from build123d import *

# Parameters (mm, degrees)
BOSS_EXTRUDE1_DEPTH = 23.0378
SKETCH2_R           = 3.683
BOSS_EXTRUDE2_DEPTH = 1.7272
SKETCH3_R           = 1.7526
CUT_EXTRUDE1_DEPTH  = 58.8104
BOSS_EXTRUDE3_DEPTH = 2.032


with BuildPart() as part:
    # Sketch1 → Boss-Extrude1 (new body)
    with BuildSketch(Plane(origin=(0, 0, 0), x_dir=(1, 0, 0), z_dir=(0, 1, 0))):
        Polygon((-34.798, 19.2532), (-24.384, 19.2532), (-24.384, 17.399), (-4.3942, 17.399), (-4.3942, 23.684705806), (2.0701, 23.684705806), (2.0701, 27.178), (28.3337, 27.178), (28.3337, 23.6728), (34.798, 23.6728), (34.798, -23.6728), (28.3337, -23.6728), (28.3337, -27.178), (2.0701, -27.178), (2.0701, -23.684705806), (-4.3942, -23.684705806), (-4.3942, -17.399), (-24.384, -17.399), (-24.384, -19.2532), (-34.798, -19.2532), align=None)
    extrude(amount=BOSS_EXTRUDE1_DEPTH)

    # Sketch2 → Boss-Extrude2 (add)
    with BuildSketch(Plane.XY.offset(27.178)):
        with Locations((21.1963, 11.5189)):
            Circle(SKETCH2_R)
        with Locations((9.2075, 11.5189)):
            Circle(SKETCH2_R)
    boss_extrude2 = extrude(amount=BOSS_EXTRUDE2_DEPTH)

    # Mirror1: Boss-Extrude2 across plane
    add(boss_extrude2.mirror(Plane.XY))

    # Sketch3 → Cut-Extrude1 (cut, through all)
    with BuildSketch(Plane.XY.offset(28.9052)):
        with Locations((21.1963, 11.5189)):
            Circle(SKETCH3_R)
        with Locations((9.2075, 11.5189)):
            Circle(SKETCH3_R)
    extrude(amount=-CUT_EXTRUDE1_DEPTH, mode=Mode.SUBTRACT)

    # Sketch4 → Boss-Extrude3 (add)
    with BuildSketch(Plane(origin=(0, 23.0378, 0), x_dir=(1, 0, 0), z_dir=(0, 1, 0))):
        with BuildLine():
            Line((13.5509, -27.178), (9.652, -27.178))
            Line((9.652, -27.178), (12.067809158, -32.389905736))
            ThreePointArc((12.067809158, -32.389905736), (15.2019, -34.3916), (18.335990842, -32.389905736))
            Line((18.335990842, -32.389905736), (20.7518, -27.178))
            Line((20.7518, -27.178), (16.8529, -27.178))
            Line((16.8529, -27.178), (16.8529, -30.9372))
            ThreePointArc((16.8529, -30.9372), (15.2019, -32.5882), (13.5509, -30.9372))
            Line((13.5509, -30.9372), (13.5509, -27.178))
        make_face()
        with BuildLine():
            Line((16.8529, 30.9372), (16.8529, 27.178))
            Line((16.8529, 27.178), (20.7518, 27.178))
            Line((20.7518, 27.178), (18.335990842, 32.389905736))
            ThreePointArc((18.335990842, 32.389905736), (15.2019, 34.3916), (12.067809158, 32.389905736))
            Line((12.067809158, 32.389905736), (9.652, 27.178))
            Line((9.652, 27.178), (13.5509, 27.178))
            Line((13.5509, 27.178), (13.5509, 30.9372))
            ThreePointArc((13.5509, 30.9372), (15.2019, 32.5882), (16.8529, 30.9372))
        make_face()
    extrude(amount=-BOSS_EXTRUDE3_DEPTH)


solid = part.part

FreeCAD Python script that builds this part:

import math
import FreeCAD as App
import Part
import Sketcher
from FreeCAD import Vector
Q = App.Units.Quantity


def add_polygon(sketch, points):
    """Adds a closed chain of lines whose ends are joined by coincident constraints."""
    first, n = sketch.GeometryCount, len(points)
    for a, b in zip(points, points[1:] + points[:1]):
        sketch.addGeometry(Part.LineSegment(App.Vector(*a, 0), App.Vector(*b, 0)), False)
    for i in range(n):
        sketch.addConstraint(Sketcher.Constraint("Coincident", first + i, 2, first + (i + 1) % n, 1))

doc = App.newDocument("Part")
body = doc.addObject("PartDesign::Body", "Body")

# Sketch on XZ plane
sketch1 = body.newObject("Sketcher::SketchObject", "Sketch")
sketch1.AttachmentSupport = (doc.getObject("XZ_Plane"), [""])
sketch1.MapMode = "FlatFace"
add_polygon(sketch1, [(-24.4, -19.3), (-34.8, -19.3), (-34.8, 19.3), (-24.4, 19.3), (-24.4, 17.4), (-4.4, 17.4), (-4.4, 23.7), (2.1, 23.7), (2.1, 27.2), (28.3, 27.2), (28.3, 23.7), (34.8, 23.7), (34.8, -23.7), (28.3, -23.7), (28.3, -27.2), (2.1, -27.2), (2.1, -23.7), (-4.4, -23.7), (-4.4, -17.4), (-24.4, -17.4)])  # lines 0-19
sketch1.addConstraint(Sketcher.Constraint("Horizontal", 0))
sketch1.addConstraint(Sketcher.Constraint("Vertical", 1))
sketch1.addConstraint(Sketcher.Constraint("Horizontal", 2))
sketch1.addConstraint(Sketcher.Constraint("Vertical", 3))
sketch1.addConstraint(Sketcher.Constraint("Horizontal", 4))
sketch1.addConstraint(Sketcher.Constraint("Vertical", 5))
sketch1.addConstraint(Sketcher.Constraint("Horizontal", 6))
sketch1.addConstraint(Sketcher.Constraint("Vertical", 7))
sketch1.addConstraint(Sketcher.Constraint("Horizontal", 8))
sketch1.addConstraint(Sketcher.Constraint("Vertical", 9))
sketch1.addConstraint(Sketcher.Constraint("Horizontal", 10))
sketch1.addConstraint(Sketcher.Constraint("Vertical", 11))
sketch1.addConstraint(Sketcher.Constraint("Horizontal", 12))
sketch1.addConstraint(Sketcher.Constraint("Vertical", 13))
sketch1.addConstraint(Sketcher.Constraint("Horizontal", 14))
sketch1.addConstraint(Sketcher.Constraint("Vertical", 15))
sketch1.addConstraint(Sketcher.Constraint("Horizontal", 16))
sketch1.addConstraint(Sketcher.Constraint("Vertical", 17))
sketch1.addConstraint(Sketcher.Constraint("Horizontal", 18))
sketch1.addConstraint(Sketcher.Constraint("Vertical", 19))
sketch1.addConstraint(Sketcher.Constraint("Symmetric", 9, 2, 12, 2, -1))
sketch1.addConstraint(Sketcher.Constraint("Symmetric", 7, 2, 14, 2, -1))
sketch1.addConstraint(Sketcher.Constraint("Symmetric", 5, 2, 16, 2, -1))
sketch1.addConstraint(Sketcher.Constraint("Symmetric", 3, 2, 18, 2, -1))
sketch1.addConstraint(Sketcher.Constraint("Equal", 6, 10))
sketch1.addConstraint(Sketcher.Constraint("Equal", 3, 19))
sketch1.addConstraint(Sketcher.Constraint("DistanceX", 0, 2, 0, 1, Q("0.41 in")))
sketch1.addConstraint(Sketcher.Constraint("DistanceX", 4, 1, 4, 2, Q("0.787 in")))
sketch1.addConstraint(Sketcher.Constraint("DistanceX", 8, 1, 8, 2, Q("1.034 in")))
sketch1.addConstraint(Sketcher.Constraint("DistanceY", 1, 1, 1, 2, Q("1.516 in")))
sketch1.addConstraint(Sketcher.Constraint("DistanceY", 3, 2, 3, 1, Q("0.073 in")))
sketch1.addConstraint(Sketcher.Constraint("DistanceY", 9, 2, 9, 1, Q("0.138 in")))
sketch1.addConstraint(Sketcher.Constraint("DistanceY", 11, 2, 11, 1, Q("1.864 in")))
sketch1.addConstraint(Sketcher.Constraint("DistanceX", 0, 2, -1, 1, Q("1.37 in")))
sketch1.addConstraint(Sketcher.Constraint("DistanceX", -1, 1, 10, 2, Q("1.37 in")))
sketch1.addConstraint(Sketcher.Constraint("DistanceY", 5, 1, 5, 2, Q("6.285706 mm")))
pad1 = body.newObject("PartDesign::Pad", "Pad")
pad1.Profile = sketch1
pad1.Length = Q("0.907 in")
pad1.Reversed = True

# Sketch on XY plane
sketch2 = body.newObject("Sketcher::SketchObject", "Sketch001")
sketch2.AttachmentSupport = (doc.getObject("XY_Plane"), [""])
sketch2.MapMode = "FlatFace"
sketch2.AttachmentOffset = App.Placement(Vector(0, 0, 1.07 * 25.4), App.Rotation())
sketch2.addGeometry(Part.Circle(Vector(21.2, 11.5, 0), Vector(0, 0, 1), 3.7), False)
sketch2.addGeometry(Part.Circle(Vector(9.2, 11.5, 0), Vector(0, 0, 1), 3.7), False)
sketch2.addConstraint(Sketcher.Constraint("Equal", 0, 1))
sketch2.addConstraint(Sketcher.Constraint("Horizontal", 0, 3, 1, 3))
sketch2.addConstraint(Sketcher.Constraint("Diameter", 0, Q("0.29 in")))
sketch2.addConstraint(Sketcher.Constraint("DistanceX", 1, 3, 0, 3, Q("0.472 in")))
sketch2.addConstraint(Sketcher.Constraint("DistanceX", -1, 1, 0, 3, Q("0.8345 in")))
sketch2.addConstraint(Sketcher.Constraint("DistanceY", -1, 1, 0, 3, Q("0.4535 in")))
pad2 = body.newObject("PartDesign::Pad", "Pad001")
pad2.Profile = sketch2
pad2.Length = Q("0.068 in")
doc.recompute()

mirrored = body.newObject("PartDesign::Mirrored", "Mirrored")
mirrored.Originals = [pad2]
mirrored.MirrorPlane = (doc.getObject("XY_Plane"), [""])
body.Tip = mirrored

# Sketch on XY plane
sketch3 = body.newObject("Sketcher::SketchObject", "Sketch002")
sketch3.AttachmentSupport = (doc.getObject("XY_Plane"), [""])
sketch3.MapMode = "FlatFace"
sketch3.AttachmentOffset = App.Placement(Vector(0, 0, 1.138 * 25.4), App.Rotation())
sketch3.addGeometry(Part.Circle(Vector(21.2, 11.5, 0), Vector(0, 0, 1), 1.8), False)
sketch3.addGeometry(Part.Circle(Vector(9.2, 11.5, 0), Vector(0, 0, 1), 1.8), False)
sketch3.addConstraint(Sketcher.Constraint("Equal", 0, 1))
sketch3.addConstraint(Sketcher.Constraint("Horizontal", 0, 3, 1, 3))
sketch3.addConstraint(Sketcher.Constraint("Diameter", 0, Q("0.138 in")))
sketch3.addConstraint(Sketcher.Constraint("DistanceX", 1, 3, 0, 3, Q("0.472 in")))
sketch3.addConstraint(Sketcher.Constraint("DistanceX", -1, 1, 0, 3, Q("0.8345 in")))
sketch3.addConstraint(Sketcher.Constraint("DistanceY", -1, 1, 0, 3, Q("0.4535 in")))
pocket1 = body.newObject("PartDesign::Pocket", "Pocket")
pocket1.Profile = sketch3
pocket1.Type = "ThroughAll"

# Sketch on XZ plane
sketch4 = body.newObject("Sketcher::SketchObject", "Sketch003")
sketch4.AttachmentSupport = (doc.getObject("XZ_Plane"), [""])
sketch4.MapMode = "FlatFace"
sketch4.AttachmentOffset = App.Placement(Vector(0, 0, -0.907 * 25.4), App.Rotation())
sketch4.addGeometry(Part.LineSegment(Vector(13.6, 27.2, 0), Vector(9.7, 27.2, 0)), False)
sketch4.addGeometry(Part.LineSegment(Vector(9.7, 27.2, 0), Vector(12.1, 32.4, 0)), False)
sketch4.addGeometry(Part.ArcOfCircle(Part.Circle(Vector(15.2, 30.9, 0), Vector(0, 0, 1), 3.5), math.radians(25), math.radians(155)), False)
sketch4.addGeometry(Part.LineSegment(Vector(18.3, 32.4, 0), Vector(20.8, 27.2, 0)), False)
sketch4.addGeometry(Part.LineSegment(Vector(20.8, 27.2, 0), Vector(16.9, 27.2, 0)), False)
sketch4.addGeometry(Part.LineSegment(Vector(16.9, 27.2, 0), Vector(16.9, 30.9, 0)), False)
sketch4.addGeometry(Part.ArcOfCircle(Part.Circle(Vector(15.2, 30.9, 0), Vector(0, 0, 1), 1.7), math.radians(0), math.radians(180)), False)
sketch4.addGeometry(Part.LineSegment(Vector(13.6, 30.9, 0), Vector(13.6, 27.2, 0)), False)
sketch4.addGeometry(Part.LineSegment(Vector(16.9, -30.9, 0), Vector(16.9, -27.2, 0)), False)
sketch4.addGeometry(Part.LineSegment(Vector(16.9, -27.2, 0), Vector(20.8, -27.2, 0)), False)
sketch4.addGeometry(Part.LineSegment(Vector(20.8, -27.2, 0), Vector(18.3, -32.4, 0)), False)
sketch4.addGeometry(Part.ArcOfCircle(Part.Circle(Vector(15.2, -30.9, 0), Vector(0, 0, 1), 3.5), math.radians(-155), math.radians(-25)), False)
sketch4.addGeometry(Part.LineSegment(Vector(12.1, -32.4, 0), Vector(9.7, -27.2, 0)), False)
sketch4.addGeometry(Part.LineSegment(Vector(9.7, -27.2, 0), Vector(13.6, -27.2, 0)), False)
sketch4.addGeometry(Part.LineSegment(Vector(13.6, -27.2, 0), Vector(13.6, -30.9, 0)), False)
sketch4.addGeometry(Part.ArcOfCircle(Part.Circle(Vector(15.2, -30.9, 0), Vector(0, 0, 1), 1.7), math.radians(180), math.radians(360)), False)
sketch4.addConstraint(Sketcher.Constraint("Coincident", 0, 2, 1, 1))
sketch4.addConstraint(Sketcher.Constraint("Tangent", 1, 2, 2, 2))
sketch4.addConstraint(Sketcher.Constraint("Tangent", 2, 1, 3, 1))
sketch4.addConstraint(Sketcher.Constraint("Coincident", 3, 2, 4, 1))
sketch4.addConstraint(Sketcher.Constraint("Coincident", 4, 2, 5, 1))
sketch4.addConstraint(Sketcher.Constraint("Tangent", 5, 2, 6, 1))
sketch4.addConstraint(Sketcher.Constraint("Tangent", 6, 2, 7, 1))
sketch4.addConstraint(Sketcher.Constraint("Coincident", 7, 2, 0, 1))
sketch4.addConstraint(Sketcher.Constraint("Coincident", 8, 2, 9, 1))
sketch4.addConstraint(Sketcher.Constraint("Coincident", 9, 2, 10, 1))
sketch4.addConstraint(Sketcher.Constraint("Tangent", 10, 2, 11, 2))
sketch4.addConstraint(Sketcher.Constraint("Tangent", 11, 1, 12, 1))
sketch4.addConstraint(Sketcher.Constraint("Coincident", 12, 2, 13, 1))
sketch4.addConstraint(Sketcher.Constraint("Coincident", 13, 2, 14, 1))
sketch4.addConstraint(Sketcher.Constraint("Tangent", 14, 2, 15, 1))
sketch4.addConstraint(Sketcher.Constraint("Tangent", 15, 2, 8, 1))
sketch4.addConstraint(Sketcher.Constraint("Horizontal", 0))
sketch4.addConstraint(Sketcher.Constraint("Horizontal", 4))
sketch4.addConstraint(Sketcher.Constraint("Vertical", 5))
sketch4.addConstraint(Sketcher.Constraint("Vertical", 7))
sketch4.addConstraint(Sketcher.Constraint("Vertical", 8))
sketch4.addConstraint(Sketcher.Constraint("Horizontal", 9))
sketch4.addConstraint(Sketcher.Constraint("Horizontal", 13))
sketch4.addConstraint(Sketcher.Constraint("Vertical", 14))
sketch4.addConstraint(Sketcher.Constraint("Coincident", 6, 3, 2, 3))
sketch4.addConstraint(Sketcher.Constraint("Coincident", 15, 3, 11, 3))
sketch4.addConstraint(Sketcher.Constraint("Equal", 2, 11))
sketch4.addConstraint(Sketcher.Constraint("Equal", 6, 15))
sketch4.addConstraint(Sketcher.Constraint("Symmetric", 2, 3, 11, 3, -1))
sketch4.addConstraint(Sketcher.Constraint("Symmetric", 3, 2, 9, 2, -1))
sketch4.addConstraint(Sketcher.Constraint("Symmetric", 0, 2, 12, 2, -1))
sketch4.addConstraint(Sketcher.Constraint("Parallel", 1, 10))
sketch4.addConstraint(Sketcher.Constraint("Horizontal", 0, 2, 3, 2))
sketch4.addConstraint(Sketcher.Constraint("Radius", 2, Q("0.136 in")))
sketch4.addConstraint(Sketcher.Constraint("Radius", 6, Q("0.065 in")))
sketch4.addConstraint(Sketcher.Constraint("DistanceY", 5, 1, 5, 2, Q("0.148 in")))
sketch4.addConstraint(Sketcher.Constraint("DistanceX", -1, 1, 0, 2, Q("0.38 in")))
sketch4.addConstraint(Sketcher.Constraint("DistanceY", -1, 1, 0, 2, Q("1.07 in")))
sketch4.addConstraint(Sketcher.Constraint("DistanceX", 0, 2, 0, 1, Q("0.1535 in")))
pad3 = body.newObject("PartDesign::Pad", "Pad002")
pad3.Profile = sketch4
pad3.Length = Q("0.08 in")

doc.recompute()
